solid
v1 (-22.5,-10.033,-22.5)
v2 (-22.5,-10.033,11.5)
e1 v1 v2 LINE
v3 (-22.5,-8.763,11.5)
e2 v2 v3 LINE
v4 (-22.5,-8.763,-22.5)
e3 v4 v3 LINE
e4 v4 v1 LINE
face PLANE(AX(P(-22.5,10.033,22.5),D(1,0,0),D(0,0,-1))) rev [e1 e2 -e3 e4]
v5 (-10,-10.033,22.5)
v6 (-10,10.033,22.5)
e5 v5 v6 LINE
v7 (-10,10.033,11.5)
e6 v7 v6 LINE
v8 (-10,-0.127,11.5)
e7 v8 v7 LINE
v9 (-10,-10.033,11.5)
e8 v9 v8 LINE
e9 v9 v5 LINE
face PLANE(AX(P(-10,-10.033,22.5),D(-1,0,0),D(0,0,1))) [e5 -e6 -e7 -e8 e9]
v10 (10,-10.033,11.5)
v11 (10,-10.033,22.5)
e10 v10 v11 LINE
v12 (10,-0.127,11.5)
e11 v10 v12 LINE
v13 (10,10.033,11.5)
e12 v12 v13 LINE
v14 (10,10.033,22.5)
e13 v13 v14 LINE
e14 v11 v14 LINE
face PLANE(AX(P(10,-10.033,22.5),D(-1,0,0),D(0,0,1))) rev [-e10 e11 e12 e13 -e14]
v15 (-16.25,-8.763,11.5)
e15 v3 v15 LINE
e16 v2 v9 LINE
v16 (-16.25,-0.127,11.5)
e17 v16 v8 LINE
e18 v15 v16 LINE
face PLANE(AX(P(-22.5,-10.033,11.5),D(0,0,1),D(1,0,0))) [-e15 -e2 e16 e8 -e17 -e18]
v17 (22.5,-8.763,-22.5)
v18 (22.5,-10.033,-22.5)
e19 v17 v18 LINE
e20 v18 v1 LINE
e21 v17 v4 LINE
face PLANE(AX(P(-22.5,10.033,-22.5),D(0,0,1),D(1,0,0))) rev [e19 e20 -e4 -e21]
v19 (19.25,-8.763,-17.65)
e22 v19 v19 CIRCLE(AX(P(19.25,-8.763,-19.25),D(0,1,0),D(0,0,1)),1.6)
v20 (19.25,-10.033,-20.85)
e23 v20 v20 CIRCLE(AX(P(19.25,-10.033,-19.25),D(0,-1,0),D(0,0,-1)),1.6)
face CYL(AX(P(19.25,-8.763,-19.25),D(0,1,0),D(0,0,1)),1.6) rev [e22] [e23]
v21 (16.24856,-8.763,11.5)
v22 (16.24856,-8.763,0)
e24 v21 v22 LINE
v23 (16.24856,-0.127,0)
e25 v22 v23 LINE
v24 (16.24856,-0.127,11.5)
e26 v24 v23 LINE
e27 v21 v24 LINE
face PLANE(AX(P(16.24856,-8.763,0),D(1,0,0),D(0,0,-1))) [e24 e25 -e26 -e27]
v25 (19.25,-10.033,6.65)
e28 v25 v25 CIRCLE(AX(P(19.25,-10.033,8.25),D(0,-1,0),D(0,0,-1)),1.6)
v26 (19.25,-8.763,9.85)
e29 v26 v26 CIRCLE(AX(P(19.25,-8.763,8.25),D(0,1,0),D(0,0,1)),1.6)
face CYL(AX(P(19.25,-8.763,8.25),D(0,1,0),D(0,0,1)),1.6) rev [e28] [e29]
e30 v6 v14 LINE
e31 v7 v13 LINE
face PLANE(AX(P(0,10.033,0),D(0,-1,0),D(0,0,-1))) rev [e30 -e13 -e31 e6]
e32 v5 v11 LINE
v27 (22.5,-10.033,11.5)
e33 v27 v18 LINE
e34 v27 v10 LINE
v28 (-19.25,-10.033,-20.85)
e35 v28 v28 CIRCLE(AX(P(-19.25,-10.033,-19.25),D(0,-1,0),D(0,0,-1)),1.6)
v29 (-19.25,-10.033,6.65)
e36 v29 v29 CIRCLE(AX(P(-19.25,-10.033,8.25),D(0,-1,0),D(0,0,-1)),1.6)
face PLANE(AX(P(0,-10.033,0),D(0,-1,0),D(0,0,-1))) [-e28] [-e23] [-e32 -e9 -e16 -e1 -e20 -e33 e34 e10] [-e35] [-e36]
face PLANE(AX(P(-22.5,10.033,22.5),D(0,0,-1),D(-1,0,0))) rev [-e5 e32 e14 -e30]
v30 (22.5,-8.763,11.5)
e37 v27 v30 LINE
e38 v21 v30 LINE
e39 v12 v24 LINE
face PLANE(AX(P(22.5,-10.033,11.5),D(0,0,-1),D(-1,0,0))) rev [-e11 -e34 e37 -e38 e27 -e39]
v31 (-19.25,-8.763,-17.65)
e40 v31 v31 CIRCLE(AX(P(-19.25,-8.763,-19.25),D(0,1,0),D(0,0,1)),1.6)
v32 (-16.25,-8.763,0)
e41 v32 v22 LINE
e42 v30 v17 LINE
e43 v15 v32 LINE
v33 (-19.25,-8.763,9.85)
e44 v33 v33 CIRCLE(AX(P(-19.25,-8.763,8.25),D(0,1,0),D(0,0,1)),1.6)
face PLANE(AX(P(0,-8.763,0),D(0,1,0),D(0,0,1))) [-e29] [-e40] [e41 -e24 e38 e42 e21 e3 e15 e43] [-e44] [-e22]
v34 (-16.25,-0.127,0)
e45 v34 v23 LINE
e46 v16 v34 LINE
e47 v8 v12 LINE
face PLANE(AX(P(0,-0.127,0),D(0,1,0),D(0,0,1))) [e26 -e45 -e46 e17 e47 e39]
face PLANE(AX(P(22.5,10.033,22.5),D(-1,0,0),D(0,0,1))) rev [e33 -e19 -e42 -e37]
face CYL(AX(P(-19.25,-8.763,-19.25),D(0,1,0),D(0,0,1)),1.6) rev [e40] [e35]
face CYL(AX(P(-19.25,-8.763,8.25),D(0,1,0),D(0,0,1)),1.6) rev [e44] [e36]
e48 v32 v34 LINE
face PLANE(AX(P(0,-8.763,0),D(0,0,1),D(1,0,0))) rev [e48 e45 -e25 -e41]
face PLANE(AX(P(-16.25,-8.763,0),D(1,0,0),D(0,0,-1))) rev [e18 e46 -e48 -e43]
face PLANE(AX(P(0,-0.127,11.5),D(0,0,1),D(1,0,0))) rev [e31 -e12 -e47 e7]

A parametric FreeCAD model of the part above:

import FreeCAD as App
import Part
import Sketcher
Q = App.Units.Quantity

doc = App.newDocument("Part")
body = doc.addObject("PartDesign::Body", "Body")

# Sketch on XZ plane
sketch1 = doc.addObject("Sketcher::SketchObject", "Sketch")
body.addObject(sketch1)
sketch1.AttachmentSupport = (doc.XZ_Plane, [""])
sketch1.MapMode = "FlatFace"
sketch1.addGeometry(Part.LineSegment(App.Vector(-22, -22, 0), App.Vector(-22, 22, 0)), False)
sketch1.addGeometry(Part.LineSegment(App.Vector(-22, 22, 0), App.Vector(22, 22, 0)), False)
sketch1.addGeometry(Part.LineSegment(App.Vector(22, 22, 0), App.Vector(22, -22, 0)), False)
sketch1.addGeometry(Part.LineSegment(App.Vector(22, -22, 0), App.Vector(-22, -22, 0)), False)
sketch1.addConstraint(Sketcher.Constraint("Coincident", 0, 2, 1, 1))
sketch1.addConstraint(Sketcher.Constraint("Coincident", 1, 2, 2, 1))
sketch1.addConstraint(Sketcher.Constraint("Coincident", 2, 2, 3, 1))
sketch1.addConstraint(Sketcher.Constraint("Coincident", 3, 2, 0, 1))
sketch1.addConstraint(Sketcher.Constraint("Vertical", 0))
sketch1.addConstraint(Sketcher.Constraint("Horizontal", 1))
sketch1.addConstraint(Sketcher.Constraint("Vertical", 2))
sketch1.addConstraint(Sketcher.Constraint("Horizontal", 3))
sketch1.addConstraint(Sketcher.Constraint("Symmetric", 0, 2, 2, 2, -1, 1))
sketch1.addConstraint(Sketcher.Constraint("Equal", 3, 0))
sketch1.addConstraint(Sketcher.Constraint("DistanceX", 1, 1, 1, 2, Q("45 mm")))
pad1 = doc.addObject("PartDesign::Pad", "Pad")
body.addObject(pad1)
pad1.Profile = sketch1
pad1.Length = 20.066
pad1.Midplane = True

# Sketch on XZ plane
sketch2 = doc.addObject("Sketcher::SketchObject", "Sketch001")
body.addObject(sketch2)
sketch2.AttachmentSupport = (doc.XZ_Plane, [""])
sketch2.MapMode = "FlatFace"
sketch2.AttachmentOffset = App.Placement(App.Vector(0, 0, -10.033), App.Rotation())
sketch2.addGeometry(Part.LineSegment(App.Vector(10, 12, 0), App.Vector(10, 22, 0)), False)
sketch2.addGeometry(Part.LineSegment(App.Vector(10, 22, 0), App.Vector(22, 22, 0)), False)
sketch2.addGeometry(Part.LineSegment(App.Vector(22, 22, 0), App.Vector(22, 12, 0)), False)
sketch2.addGeometry(Part.LineSegment(App.Vector(22, 12, 0), App.Vector(10, 12, 0)), False)
sketch2.addConstraint(Sketcher.Constraint("Coincident", 0, 2, 1, 1))
sketch2.addConstraint(Sketcher.Constraint("Coincident", 1, 2, 2, 1))
sketch2.addConstraint(Sketcher.Constraint("Coincident", 2, 2, 3, 1))
sketch2.addConstraint(Sketcher.Constraint("Coincident", 3, 2, 0, 1))
sketch2.addConstraint(Sketcher.Constraint("Vertical", 0))
sketch2.addConstraint(Sketcher.Constraint("Horizontal", 1))
sketch2.addConstraint(Sketcher.Constraint("Vertical", 2))
sketch2.addConstraint(Sketcher.Constraint("Horizontal", 3))
sketch2.addConstraint(Sketcher.Constraint("DistanceY", 0, 1, 0, 2, Q("11 mm")))
sketch2.addConstraint(Sketcher.Constraint("DistanceX", 1, 1, 1, 2, Q("12.5 mm")))
sketch2.addConstraint(Sketcher.Constraint("DistanceX", -1, 1, 0, 2, Q("10 mm")))
sketch2.addConstraint(Sketcher.Constraint("DistanceY", -1, 1, 0, 2, Q("22.5 mm")))
pocket1 = doc.addObject("PartDesign::Pocket", "Pocket")
body.addObject(pocket1)
pocket1.Profile = sketch2
pocket1.Length = 20.066
pocket1.Reversed = True
doc.recompute()

mirrored = doc.addObject("PartDesign::Mirrored", "Mirrored")
body.addObject(mirrored)
mirrored.Originals = [pocket1]
mirrored.MirrorPlane = (doc.YZ_Plane, [""])
body.Tip = mirrored

# Sketch on XZ plane
sketch3 = doc.addObject("Sketcher::SketchObject", "Sketch002")
body.addObject(sketch3)
sketch3.AttachmentSupport = (doc.XZ_Plane, [""])
sketch3.MapMode = "FlatFace"
sketch3.AttachmentOffset = App.Placement(App.Vector(0, 0, -10.033), App.Rotation())
sketch3.addGeometry(Part.LineSegment(App.Vector(-22, 12, 0), App.Vector(-16, 12, 0)), False)
sketch3.addGeometry(Part.LineSegment(App.Vector(-16, 12, 0), App.Vector(-16, 0, 0)), False)
sketch3.addGeometry(Part.LineSegment(App.Vector(-16, 0, 0), App.Vector(16, 0, 0)), False)
sketch3.addGeometry(Part.LineSegment(App.Vector(16, 0, 0), App.Vector(16, 12, 0)), False)
sketch3.addGeometry(Part.LineSegment(App.Vector(16, 12, 0), App.Vector(22, 12, 0)), False)
sketch3.addGeometry(Part.LineSegment(App.Vector(22, 12, 0), App.Vector(22, -22, 0)), False)
sketch3.addGeometry(Part.LineSegment(App.Vector(22, -22, 0), App.Vector(-22, -22, 0)), False)
sketch3.addGeometry(Part.LineSegment(App.Vector(-22, -22, 0), App.Vector(-22, 12, 0)), False)
sketch3.addConstraint(Sketcher.Constraint("Coincident", 0, 2, 1, 1))
sketch3.addConstraint(Sketcher.Constraint("Coincident", 1, 2, 2, 1))
sketch3.addConstraint(Sketcher.Constraint("Coincident", 2, 2, 3, 1))
sketch3.addConstraint(Sketcher.Constraint("Coincident", 3, 2, 4, 1))
sketch3.addConstraint(Sketcher.Constraint("Coincident", 4, 2, 5, 1))
sketch3.addConstraint(Sketcher.Constraint("Coincident", 5, 2, 6, 1))
sketch3.addConstraint(Sketcher.Constraint("Coincident", 6, 2, 7, 1))
sketch3.addConstraint(Sketcher.Constraint("Coincident", 7, 2, 0, 1))
sketch3.addConstraint(Sketcher.Constraint("Horizontal", 0))
sketch3.addConstraint(Sketcher.Constraint("Vertical", 1))
sketch3.addConstraint(Sketcher.Constraint("Horizontal", 2))
sketch3.addConstraint(Sketcher.Constraint("Vertical", 3))
sketch3.addConstraint(Sketcher.Constraint("Horizontal", 4))
sketch3.addConstraint(Sketcher.Constraint("Vertical", 5))
sketch3.addConstraint(Sketcher.Constraint("Horizontal", 6))
sketch3.addConstraint(Sketcher.Constraint("Vertical", 7))
sketch3.addConstraint(Sketcher.Constraint("Symmetric", 4, 2, 7, 2, -2))
sketch3.addConstraint(Sketcher.Constraint("PointOnObject", 1, 2, -1))
sketch3.addConstraint(Sketcher.Constraint("DistanceX", 6, 2, 6, 1, Q("45 mm")))
sketch3.addConstraint(Sketcher.Constraint("DistanceY", 5, 2, 5, 1, Q("34 mm")))
sketch3.addConstraint(Sketcher.Constraint("DistanceY", 1, 2, 1, 1, Q("11.5 mm")))
sketch3.addConstraint(Sketcher.Constraint("DistanceX", 0, 1, 0, 2, Q("6.25 mm")))
sketch3.addConstraint(Sketcher.Constraint("DistanceX", 2, 1, 2, 2, Q("32.49856 mm")))
pocket2 = doc.addObject("PartDesign::Pocket", "Pocket001")
body.addObject(pocket2)
pocket2.Profile = sketch3
pocket2.Length = 18.796
pocket2.Reversed = True

# Sketch on XZ plane
sketch4 = doc.addObject("Sketcher::SketchObject", "Sketch003")
body.addObject(sketch4)
sketch4.AttachmentSupport = (doc.XZ_Plane, [""])
sketch4.MapMode = "FlatFace"
sketch4.AttachmentOffset = App.Placement(App.Vector(0, 0, -10.033), App.Rotation())
sketch4.addGeometry(Part.LineSegment(App.Vector(-16, 0, 0), App.Vector(-16, 12, 0)), False)
sketch4.addGeometry(Part.LineSegment(App.Vector(-16, 12, 0), App.Vector(16, 12, 0)), False)
sketch4.addGeometry(Part.LineSegment(App.Vector(16, 12, 0), App.Vector(16, 0, 0)), False)
sketch4.addGeometry(Part.LineSegment(App.Vector(16, 0, 0), App.Vector(-16, 0, 0)), False)
sketch4.addConstraint(Sketcher.Constraint("Coincident", 0, 2, 1, 1))
sketch4.addConstraint(Sketcher.Constraint("Coincident", 1, 2, 2, 1))
sketch4.addConstraint(Sketcher.Constraint("Coincident", 2, 2, 3, 1))
sketch4.addConstraint(Sketcher.Constraint("Coincident", 3, 2, 0, 1))
sketch4.addConstraint(Sketcher.Constraint("Vertical", 0))
sketch4.addConstraint(Sketcher.Constraint("Horizontal", 1))
sketch4.addConstraint(Sketcher.Constraint("Vertical", 2))
sketch4.addConstraint(Sketcher.Constraint("Horizontal", 3))
sketch4.addConstraint(Sketcher.Constraint("PointOnObject", 2, 2, -1))
sketch4.addConstraint(Sketcher.Constraint("DistanceY", 0, 1, 0, 2, Q("11.5 mm")))
sketch4.addConstraint(Sketcher.Constraint("DistanceX", 0, 2, -1, 1, Q("16.25 mm")))
sketch4.addConstraint(Sketcher.Constraint("DistanceX", 1, 1, 1, 2, Q("32.49856 mm")))
pocket3 = doc.addObject("PartDesign::Pocket", "Pocket002")
body.addObject(pocket3)
pocket3.Profile = sketch4
pocket3.Length = 10.16
pocket3.Reversed = True

# Sketch on XZ plane
sketch5 = doc.addObject("Sketcher::SketchObject", "Sketch004")
body.addObject(sketch5)
sketch5.AttachmentSupport = (doc.XZ_Plane, [""])
sketch5.MapMode = "FlatFace"
sketch5.AttachmentOffset = App.Placement(App.Vector(0, 0, 8.763), App.Rotation())
sketch5.addGeometry(Part.Circle(App.Vector(-19.2, -19.2, 0), App.Vector(0, 0, 1), 1.6), False)
sketch5.addGeometry(Part.Circle(App.Vector(-19.2, 8.2, 0), App.Vector(0, 0, 1), 1.6), False)
sketch5.addGeometry(Part.Circle(App.Vector(19.2, 8.2, 0), App.Vector(0, 0, 1), 1.6), False)
sketch5.addGeometry(Part.Circle(App.Vector(19.2, -19.2, 0), App.Vector(0, 0, 1), 1.6), False)
sketch5.addConstraint(Sketcher.Constraint("Equal", 0, 1))
sketch5.addConstraint(Sketcher.Constraint("Equal", 1, 2))
sketch5.addConstraint(Sketcher.Constraint("Equal", 2, 3))
sketch5.addConstraint(Sketcher.Constraint("Symmetric", 1, 3, 2, 3, -2))
sketch5.addConstraint(Sketcher.Constraint("Symmetric", 0, 3, 3, 3, -2))
sketch5.addConstraint(Sketcher.Constraint("Vertical", 0, 3, 1, 3))
sketch5.addConstraint(Sketcher.Constraint("Diameter", 0, Q("3.2 mm")))
sketch5.addConstraint(Sketcher.Constraint("DistanceY", 0, 3, 1, 3, Q("27.5 mm")))
sketch5.addConstraint(Sketcher.Constraint("DistanceX", 1, 3, 2, 3, Q("38.5 mm")))
sketch5.addConstraint(Sketcher.Constraint("DistanceY", 0, 3, -1, 1, Q("19.25 mm")))
doc.recompute()
hole = doc.addObject("PartDesign::Hole", "Hole")
body.addObject(hole)
hole.Profile = sketch5
hole.ThreadType = "None"
hole.Diameter = 3.2
hole.DepthType = "ThroughAll"
hole.Reversed = True

doc.recompute()
